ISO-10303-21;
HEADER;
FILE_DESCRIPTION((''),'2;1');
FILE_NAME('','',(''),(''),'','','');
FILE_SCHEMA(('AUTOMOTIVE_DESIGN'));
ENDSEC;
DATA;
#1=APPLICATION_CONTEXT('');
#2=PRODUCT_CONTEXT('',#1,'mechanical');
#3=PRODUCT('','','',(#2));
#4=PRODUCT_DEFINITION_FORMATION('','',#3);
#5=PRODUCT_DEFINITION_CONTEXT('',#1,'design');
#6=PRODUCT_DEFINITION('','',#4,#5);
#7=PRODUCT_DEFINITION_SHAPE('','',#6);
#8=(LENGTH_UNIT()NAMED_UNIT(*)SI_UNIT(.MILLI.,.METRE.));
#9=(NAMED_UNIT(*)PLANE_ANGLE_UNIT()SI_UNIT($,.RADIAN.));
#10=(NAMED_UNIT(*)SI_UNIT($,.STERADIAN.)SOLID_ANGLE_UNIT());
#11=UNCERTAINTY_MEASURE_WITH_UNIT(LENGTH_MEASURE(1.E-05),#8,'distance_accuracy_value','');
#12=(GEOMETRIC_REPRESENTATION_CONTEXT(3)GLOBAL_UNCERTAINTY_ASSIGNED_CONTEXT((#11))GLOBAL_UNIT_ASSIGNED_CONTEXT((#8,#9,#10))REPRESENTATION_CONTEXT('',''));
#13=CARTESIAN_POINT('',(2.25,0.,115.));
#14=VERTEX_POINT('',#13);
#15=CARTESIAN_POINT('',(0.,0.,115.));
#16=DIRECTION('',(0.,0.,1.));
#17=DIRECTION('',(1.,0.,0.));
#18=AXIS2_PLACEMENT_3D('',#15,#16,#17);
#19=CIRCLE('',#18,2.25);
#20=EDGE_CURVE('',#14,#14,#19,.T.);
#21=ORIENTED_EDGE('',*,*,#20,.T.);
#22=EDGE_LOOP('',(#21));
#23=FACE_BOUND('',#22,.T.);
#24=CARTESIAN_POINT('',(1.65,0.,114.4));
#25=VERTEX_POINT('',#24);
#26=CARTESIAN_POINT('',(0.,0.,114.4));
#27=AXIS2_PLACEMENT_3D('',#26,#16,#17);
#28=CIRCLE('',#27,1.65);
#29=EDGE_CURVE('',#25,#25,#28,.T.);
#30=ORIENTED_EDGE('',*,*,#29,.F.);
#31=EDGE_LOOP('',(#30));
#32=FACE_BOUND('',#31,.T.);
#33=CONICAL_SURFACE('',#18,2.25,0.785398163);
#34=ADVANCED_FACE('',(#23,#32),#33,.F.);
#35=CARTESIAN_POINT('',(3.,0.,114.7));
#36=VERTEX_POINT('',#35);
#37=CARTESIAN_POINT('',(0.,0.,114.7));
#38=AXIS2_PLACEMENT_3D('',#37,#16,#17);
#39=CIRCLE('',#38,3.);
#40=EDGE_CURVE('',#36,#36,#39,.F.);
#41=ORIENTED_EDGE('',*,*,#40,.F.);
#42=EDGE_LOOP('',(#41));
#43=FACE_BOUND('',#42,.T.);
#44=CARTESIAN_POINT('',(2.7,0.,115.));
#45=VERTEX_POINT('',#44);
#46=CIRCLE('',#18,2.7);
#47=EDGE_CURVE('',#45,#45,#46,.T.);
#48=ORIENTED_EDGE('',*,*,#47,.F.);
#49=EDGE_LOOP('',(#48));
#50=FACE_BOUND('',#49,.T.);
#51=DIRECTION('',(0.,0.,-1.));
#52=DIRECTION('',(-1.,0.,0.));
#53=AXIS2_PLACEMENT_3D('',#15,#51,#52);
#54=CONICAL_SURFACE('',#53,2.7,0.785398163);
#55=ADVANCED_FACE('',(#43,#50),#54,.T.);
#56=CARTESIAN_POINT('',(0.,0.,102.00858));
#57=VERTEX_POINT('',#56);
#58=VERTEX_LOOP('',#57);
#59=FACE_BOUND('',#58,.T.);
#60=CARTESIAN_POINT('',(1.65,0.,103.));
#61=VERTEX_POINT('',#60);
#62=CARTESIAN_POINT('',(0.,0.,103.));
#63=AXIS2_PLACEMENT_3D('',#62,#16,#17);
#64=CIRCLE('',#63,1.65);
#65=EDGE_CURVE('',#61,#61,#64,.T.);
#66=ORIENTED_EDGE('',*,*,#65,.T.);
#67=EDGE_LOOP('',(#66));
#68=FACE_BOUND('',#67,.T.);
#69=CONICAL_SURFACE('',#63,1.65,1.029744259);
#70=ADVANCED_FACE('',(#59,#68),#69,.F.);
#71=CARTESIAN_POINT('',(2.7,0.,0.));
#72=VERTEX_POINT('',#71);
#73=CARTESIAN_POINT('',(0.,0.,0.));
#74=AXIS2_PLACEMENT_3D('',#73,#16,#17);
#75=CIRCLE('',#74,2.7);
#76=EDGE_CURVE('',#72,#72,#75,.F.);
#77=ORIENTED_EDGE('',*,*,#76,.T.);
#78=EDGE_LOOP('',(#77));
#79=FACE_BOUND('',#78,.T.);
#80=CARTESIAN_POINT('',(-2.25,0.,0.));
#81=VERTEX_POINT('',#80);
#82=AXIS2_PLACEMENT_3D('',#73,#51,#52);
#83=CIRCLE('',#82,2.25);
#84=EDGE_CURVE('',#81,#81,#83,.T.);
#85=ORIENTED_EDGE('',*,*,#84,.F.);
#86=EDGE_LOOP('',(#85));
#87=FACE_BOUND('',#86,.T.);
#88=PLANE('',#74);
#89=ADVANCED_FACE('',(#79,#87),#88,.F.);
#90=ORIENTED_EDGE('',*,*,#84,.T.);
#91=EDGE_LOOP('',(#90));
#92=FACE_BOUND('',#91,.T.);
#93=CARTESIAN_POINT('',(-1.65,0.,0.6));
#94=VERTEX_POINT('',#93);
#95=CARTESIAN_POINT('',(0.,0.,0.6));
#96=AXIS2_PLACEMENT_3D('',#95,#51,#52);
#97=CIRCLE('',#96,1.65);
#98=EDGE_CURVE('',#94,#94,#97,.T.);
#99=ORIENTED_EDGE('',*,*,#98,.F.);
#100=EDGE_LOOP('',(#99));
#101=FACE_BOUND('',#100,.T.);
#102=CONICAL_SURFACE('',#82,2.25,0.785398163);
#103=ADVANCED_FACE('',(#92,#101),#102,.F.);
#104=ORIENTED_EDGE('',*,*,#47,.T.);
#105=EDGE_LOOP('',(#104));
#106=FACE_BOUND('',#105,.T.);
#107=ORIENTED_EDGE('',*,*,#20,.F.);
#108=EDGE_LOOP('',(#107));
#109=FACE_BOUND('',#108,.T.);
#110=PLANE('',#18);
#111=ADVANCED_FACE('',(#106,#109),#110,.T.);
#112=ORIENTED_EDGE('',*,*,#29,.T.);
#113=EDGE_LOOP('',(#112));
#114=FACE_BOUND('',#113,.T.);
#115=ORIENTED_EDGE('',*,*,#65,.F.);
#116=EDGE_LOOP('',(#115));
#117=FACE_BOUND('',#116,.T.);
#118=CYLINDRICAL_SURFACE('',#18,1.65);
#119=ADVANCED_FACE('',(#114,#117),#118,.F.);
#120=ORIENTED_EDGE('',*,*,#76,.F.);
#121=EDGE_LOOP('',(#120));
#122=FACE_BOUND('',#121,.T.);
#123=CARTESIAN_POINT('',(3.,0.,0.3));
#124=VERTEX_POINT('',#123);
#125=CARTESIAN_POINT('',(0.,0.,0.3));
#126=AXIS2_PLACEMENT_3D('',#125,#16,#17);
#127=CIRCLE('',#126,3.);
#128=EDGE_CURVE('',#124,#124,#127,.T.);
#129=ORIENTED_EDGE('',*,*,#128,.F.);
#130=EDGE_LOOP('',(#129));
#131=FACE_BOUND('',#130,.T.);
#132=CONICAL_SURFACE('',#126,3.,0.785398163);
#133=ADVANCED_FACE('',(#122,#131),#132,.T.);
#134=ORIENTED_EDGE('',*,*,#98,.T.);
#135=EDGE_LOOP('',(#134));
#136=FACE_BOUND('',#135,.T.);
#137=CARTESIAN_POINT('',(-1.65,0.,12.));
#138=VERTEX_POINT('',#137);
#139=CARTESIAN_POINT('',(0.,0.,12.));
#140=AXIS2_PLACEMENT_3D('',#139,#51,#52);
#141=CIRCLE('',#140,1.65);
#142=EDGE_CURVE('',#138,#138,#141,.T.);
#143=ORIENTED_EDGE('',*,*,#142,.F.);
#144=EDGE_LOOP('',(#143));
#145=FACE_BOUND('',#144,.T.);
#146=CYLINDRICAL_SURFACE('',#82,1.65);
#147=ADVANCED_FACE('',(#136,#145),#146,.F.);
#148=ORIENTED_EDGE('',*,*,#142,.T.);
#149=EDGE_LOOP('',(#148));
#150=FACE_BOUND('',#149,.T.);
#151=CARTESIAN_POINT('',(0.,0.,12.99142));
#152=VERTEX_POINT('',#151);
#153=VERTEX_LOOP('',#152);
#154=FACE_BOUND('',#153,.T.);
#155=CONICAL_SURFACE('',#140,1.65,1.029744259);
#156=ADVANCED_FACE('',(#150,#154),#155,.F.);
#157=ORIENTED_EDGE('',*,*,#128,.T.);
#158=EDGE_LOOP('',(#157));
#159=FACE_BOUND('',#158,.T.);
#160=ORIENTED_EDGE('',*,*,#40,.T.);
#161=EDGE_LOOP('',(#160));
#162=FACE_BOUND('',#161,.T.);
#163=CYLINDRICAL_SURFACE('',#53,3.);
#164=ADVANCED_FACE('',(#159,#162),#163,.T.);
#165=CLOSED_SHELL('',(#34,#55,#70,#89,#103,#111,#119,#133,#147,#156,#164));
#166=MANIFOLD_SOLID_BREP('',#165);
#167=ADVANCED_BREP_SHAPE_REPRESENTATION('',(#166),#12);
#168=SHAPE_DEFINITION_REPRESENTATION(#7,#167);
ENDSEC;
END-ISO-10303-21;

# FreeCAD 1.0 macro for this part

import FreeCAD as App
import Part
import Sketcher
from FreeCAD import Vector


def edges_at(feature, points):
    """Names of the edges that pass closest to the given points."""
    edges = feature.Shape.Edges
    near = lambda p: min(range(len(edges)), key=lambda i: edges[i].distToShape(Part.Vertex(*p))[0])
    return sorted({f"Edge{near(p) + 1}" for p in points})

doc = App.newDocument("Part")
body = doc.addObject("PartDesign::Body", "Body")

# Sketch on XY plane
sketch1 = body.newObject("Sketcher::SketchObject", "Sketch")
sketch1.AttachmentSupport = (doc.getObject("XY_Plane"), [""])
sketch1.MapMode = "FlatFace"
sketch1.addGeometry(Part.Circle(Vector(0, 0, 0), Vector(0, 0, 1), 3), False)
sketch1.addConstraint([
    Sketcher.Constraint("Coincident", 0, 3, -1, 1),
    Sketcher.Constraint("Diameter", 0, 6.0),
])
pad1 = body.newObject("PartDesign::Pad", "Pad")
pad1.Profile = sketch1
pad1.Length = 115

# Sketch on XY plane
sketch2 = body.newObject("Sketcher::SketchObject", "Sketch001")
sketch2.AttachmentSupport = (doc.getObject("XY_Plane"), [""])
sketch2.MapMode = "FlatFace"
sketch2.AttachmentOffset = App.Placement(Vector(0, 0, 115), App.Rotation())
sketch2.addGeometry(Part.Circle(Vector(0, 0, 0), Vector(0, 0, 1), 1.6), False)
sketch2.addConstraint([
    Sketcher.Constraint("Coincident", 0, 3, -1, 1),
    Sketcher.Constraint("Diameter", 0, 3.3),
])
doc.recompute()
hole = body.newObject("PartDesign::Hole", "Hole")
hole.Profile = sketch2
hole.ThreadType = "None"
hole.Diameter = 3.3
hole.DepthType = "Dimension"
hole.Depth = 12
hole.DrillPoint = "Angled"
hole.DrillPointAngle = 118
hole.HoleCutType = "Countersink"
hole.HoleCutDiameter = 4.5
hole.HoleCutCountersinkAngle = 90

# Sketch on XY plane
sketch3 = body.newObject("Sketcher::SketchObject", "Sketch002")
sketch3.AttachmentSupport = (doc.getObject("XY_Plane"), [""])
sketch3.MapMode = "FlatFace"
sketch3.addGeometry(Part.Circle(Vector(0, 0, 0), Vector(0, 0, 1), 1.6), False)
sketch3.addConstraint([
    Sketcher.Constraint("Coincident", 0, 3, -1, 1),
    Sketcher.Constraint("Diameter", 0, 3.3),
])
doc.recompute()
hole2 = body.newObject("PartDesign::Hole", "Hole001")
hole2.Profile = sketch3
hole2.ThreadType = "None"
hole2.Diameter = 3.3
hole2.DepthType = "Dimension"
hole2.Depth = 12
hole2.DrillPoint = "Angled"
hole2.DrillPointAngle = 118
hole2.HoleCutType = "Countersink"
hole2.HoleCutDiameter = 4.5
hole2.HoleCutCountersinkAngle = 90
hole2.Reversed = True
doc.recompute()

chamfer = body.newObject("PartDesign::Chamfer", "Chamfer")
chamfer.Base = (hole2, edges_at(hole2, [(-3, 0, 0), (-3, 0, 115)]))
chamfer.Size = 0.3

doc.recompute()
